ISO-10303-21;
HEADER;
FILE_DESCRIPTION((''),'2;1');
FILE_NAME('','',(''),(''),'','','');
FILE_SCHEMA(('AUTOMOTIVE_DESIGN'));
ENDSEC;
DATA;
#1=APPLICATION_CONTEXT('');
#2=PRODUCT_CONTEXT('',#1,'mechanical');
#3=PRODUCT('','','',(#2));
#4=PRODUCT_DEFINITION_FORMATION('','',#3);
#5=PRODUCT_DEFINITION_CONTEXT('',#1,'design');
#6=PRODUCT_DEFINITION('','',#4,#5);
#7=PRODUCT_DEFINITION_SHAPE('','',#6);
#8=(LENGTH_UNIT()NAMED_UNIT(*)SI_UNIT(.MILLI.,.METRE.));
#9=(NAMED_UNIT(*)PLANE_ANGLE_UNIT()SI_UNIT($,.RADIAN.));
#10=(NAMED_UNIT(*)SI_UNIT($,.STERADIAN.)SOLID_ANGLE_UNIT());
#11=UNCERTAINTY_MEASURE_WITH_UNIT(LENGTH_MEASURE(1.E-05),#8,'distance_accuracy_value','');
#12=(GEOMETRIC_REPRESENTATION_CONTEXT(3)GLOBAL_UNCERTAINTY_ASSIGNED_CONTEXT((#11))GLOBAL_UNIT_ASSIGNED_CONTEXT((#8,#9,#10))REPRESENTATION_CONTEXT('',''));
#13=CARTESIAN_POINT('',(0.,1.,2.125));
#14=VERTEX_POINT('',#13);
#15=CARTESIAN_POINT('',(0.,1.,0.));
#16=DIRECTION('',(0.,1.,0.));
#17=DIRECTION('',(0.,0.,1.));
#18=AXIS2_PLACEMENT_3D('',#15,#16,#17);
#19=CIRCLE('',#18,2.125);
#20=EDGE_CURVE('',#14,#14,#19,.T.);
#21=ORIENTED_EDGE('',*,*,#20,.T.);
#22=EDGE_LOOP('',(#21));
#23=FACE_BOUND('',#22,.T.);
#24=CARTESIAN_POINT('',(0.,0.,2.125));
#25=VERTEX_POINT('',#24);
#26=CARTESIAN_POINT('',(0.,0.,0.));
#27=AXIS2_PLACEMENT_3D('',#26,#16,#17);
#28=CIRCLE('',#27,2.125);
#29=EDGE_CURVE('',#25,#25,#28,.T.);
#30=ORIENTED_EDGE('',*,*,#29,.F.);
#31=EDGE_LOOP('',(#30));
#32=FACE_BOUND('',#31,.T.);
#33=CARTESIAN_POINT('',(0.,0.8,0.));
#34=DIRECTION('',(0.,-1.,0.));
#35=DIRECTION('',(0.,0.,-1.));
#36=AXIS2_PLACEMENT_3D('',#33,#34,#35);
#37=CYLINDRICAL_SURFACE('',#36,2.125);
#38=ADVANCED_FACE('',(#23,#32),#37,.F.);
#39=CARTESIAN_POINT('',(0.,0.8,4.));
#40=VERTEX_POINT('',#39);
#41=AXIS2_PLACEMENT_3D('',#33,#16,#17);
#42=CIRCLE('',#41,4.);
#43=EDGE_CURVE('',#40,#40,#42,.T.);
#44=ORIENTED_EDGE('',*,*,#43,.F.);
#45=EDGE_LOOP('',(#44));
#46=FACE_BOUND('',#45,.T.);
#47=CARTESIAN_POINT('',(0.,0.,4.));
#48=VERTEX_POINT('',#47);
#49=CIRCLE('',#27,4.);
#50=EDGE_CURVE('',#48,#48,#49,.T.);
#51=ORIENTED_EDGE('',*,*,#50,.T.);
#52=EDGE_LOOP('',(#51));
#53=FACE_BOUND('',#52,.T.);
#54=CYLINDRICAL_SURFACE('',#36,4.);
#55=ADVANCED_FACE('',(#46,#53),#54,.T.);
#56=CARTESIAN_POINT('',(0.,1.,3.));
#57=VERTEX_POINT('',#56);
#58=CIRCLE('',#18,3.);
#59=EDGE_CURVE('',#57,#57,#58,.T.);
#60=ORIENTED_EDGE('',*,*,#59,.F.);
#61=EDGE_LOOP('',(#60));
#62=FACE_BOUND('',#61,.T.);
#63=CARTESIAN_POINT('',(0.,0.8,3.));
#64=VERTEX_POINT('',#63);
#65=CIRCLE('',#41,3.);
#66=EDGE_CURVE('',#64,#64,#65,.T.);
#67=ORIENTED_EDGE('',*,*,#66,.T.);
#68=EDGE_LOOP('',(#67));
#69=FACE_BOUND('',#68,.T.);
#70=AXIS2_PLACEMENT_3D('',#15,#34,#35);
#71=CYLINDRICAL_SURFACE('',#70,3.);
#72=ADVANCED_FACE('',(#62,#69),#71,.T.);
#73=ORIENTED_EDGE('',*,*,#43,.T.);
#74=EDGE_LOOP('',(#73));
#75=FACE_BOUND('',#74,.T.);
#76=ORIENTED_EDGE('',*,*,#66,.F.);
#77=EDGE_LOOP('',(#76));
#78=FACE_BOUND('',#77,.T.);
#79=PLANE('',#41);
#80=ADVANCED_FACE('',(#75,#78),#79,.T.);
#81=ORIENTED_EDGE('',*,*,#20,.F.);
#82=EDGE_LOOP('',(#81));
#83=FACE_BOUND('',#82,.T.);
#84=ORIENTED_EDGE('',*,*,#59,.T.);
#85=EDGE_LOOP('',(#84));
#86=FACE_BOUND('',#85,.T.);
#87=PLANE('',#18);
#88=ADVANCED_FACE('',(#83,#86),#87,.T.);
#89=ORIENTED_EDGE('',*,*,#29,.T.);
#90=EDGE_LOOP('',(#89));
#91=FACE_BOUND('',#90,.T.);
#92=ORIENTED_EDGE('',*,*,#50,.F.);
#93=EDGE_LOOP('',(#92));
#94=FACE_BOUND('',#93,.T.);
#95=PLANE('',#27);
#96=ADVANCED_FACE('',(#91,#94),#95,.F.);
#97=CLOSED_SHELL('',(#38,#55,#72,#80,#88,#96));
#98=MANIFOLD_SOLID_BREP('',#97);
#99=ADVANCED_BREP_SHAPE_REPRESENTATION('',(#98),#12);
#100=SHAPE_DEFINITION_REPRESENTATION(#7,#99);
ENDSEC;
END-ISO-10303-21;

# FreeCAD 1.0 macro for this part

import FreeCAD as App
import Part
import Sketcher
from FreeCAD import Vector

doc = App.newDocument("Part")
body = doc.addObject("PartDesign::Body", "Body")

sketch1 = body.newObject("Sketcher::SketchObject", "Sketch")
sketch1.AttachmentSupport = (doc.getObject("XZ_Plane"), [""])
sketch1.MapMode = "FlatFace"
sketch1.addGeometry([
    Part.Circle(Vector(0, 0, 0), Vector(0, 0, 1), 4),
    Part.Circle(Vector(0, 0, 0), Vector(0, 0, 1), 2.1),
], False)
sketch1.addConstraint([
    Sketcher.Constraint("Coincident", 0, 3, -1, 1),
    Sketcher.Constraint("Coincident", 1, 3, -1, 1),
    Sketcher.Constraint("Diameter", 0, 8.0),
    Sketcher.Constraint("Diameter", 1, 4.25),
])
pad1 = body.newObject("PartDesign::Pad", "Pad")
pad1.Profile = sketch1
pad1.Length = 0.8
pad1.Reversed = True

sketch2 = body.newObject("Sketcher::SketchObject", "Sketch001")
sketch2.AttachmentSupport = (doc.getObject("XZ_Plane"), [""])
sketch2.MapMode = "FlatFace"
sketch2.AttachmentOffset = App.Placement(Vector(0, 0, -0.8), App.Rotation())
sketch2.addGeometry([
    Part.Circle(Vector(0, 0, 0), Vector(0, 0, 1), 3),
    Part.Circle(Vector(0, 0, 0), Vector(0, 0, 1), 2.1),
], False)
sketch2.addConstraint([
    Sketcher.Constraint("Coincident", 0, 3, -1, 1),
    Sketcher.Constraint("Coincident", 1, 3, -1, 1),
    Sketcher.Constraint("Diameter", 0, 6.0),
    Sketcher.Constraint("Diameter", 1, 4.25),
])
pad2 = body.newObject("PartDesign::Pad", "Pad001")
pad2.Profile = sketch2
pad2.Length = 0.2
pad2.Reversed = True

doc.recompute()
